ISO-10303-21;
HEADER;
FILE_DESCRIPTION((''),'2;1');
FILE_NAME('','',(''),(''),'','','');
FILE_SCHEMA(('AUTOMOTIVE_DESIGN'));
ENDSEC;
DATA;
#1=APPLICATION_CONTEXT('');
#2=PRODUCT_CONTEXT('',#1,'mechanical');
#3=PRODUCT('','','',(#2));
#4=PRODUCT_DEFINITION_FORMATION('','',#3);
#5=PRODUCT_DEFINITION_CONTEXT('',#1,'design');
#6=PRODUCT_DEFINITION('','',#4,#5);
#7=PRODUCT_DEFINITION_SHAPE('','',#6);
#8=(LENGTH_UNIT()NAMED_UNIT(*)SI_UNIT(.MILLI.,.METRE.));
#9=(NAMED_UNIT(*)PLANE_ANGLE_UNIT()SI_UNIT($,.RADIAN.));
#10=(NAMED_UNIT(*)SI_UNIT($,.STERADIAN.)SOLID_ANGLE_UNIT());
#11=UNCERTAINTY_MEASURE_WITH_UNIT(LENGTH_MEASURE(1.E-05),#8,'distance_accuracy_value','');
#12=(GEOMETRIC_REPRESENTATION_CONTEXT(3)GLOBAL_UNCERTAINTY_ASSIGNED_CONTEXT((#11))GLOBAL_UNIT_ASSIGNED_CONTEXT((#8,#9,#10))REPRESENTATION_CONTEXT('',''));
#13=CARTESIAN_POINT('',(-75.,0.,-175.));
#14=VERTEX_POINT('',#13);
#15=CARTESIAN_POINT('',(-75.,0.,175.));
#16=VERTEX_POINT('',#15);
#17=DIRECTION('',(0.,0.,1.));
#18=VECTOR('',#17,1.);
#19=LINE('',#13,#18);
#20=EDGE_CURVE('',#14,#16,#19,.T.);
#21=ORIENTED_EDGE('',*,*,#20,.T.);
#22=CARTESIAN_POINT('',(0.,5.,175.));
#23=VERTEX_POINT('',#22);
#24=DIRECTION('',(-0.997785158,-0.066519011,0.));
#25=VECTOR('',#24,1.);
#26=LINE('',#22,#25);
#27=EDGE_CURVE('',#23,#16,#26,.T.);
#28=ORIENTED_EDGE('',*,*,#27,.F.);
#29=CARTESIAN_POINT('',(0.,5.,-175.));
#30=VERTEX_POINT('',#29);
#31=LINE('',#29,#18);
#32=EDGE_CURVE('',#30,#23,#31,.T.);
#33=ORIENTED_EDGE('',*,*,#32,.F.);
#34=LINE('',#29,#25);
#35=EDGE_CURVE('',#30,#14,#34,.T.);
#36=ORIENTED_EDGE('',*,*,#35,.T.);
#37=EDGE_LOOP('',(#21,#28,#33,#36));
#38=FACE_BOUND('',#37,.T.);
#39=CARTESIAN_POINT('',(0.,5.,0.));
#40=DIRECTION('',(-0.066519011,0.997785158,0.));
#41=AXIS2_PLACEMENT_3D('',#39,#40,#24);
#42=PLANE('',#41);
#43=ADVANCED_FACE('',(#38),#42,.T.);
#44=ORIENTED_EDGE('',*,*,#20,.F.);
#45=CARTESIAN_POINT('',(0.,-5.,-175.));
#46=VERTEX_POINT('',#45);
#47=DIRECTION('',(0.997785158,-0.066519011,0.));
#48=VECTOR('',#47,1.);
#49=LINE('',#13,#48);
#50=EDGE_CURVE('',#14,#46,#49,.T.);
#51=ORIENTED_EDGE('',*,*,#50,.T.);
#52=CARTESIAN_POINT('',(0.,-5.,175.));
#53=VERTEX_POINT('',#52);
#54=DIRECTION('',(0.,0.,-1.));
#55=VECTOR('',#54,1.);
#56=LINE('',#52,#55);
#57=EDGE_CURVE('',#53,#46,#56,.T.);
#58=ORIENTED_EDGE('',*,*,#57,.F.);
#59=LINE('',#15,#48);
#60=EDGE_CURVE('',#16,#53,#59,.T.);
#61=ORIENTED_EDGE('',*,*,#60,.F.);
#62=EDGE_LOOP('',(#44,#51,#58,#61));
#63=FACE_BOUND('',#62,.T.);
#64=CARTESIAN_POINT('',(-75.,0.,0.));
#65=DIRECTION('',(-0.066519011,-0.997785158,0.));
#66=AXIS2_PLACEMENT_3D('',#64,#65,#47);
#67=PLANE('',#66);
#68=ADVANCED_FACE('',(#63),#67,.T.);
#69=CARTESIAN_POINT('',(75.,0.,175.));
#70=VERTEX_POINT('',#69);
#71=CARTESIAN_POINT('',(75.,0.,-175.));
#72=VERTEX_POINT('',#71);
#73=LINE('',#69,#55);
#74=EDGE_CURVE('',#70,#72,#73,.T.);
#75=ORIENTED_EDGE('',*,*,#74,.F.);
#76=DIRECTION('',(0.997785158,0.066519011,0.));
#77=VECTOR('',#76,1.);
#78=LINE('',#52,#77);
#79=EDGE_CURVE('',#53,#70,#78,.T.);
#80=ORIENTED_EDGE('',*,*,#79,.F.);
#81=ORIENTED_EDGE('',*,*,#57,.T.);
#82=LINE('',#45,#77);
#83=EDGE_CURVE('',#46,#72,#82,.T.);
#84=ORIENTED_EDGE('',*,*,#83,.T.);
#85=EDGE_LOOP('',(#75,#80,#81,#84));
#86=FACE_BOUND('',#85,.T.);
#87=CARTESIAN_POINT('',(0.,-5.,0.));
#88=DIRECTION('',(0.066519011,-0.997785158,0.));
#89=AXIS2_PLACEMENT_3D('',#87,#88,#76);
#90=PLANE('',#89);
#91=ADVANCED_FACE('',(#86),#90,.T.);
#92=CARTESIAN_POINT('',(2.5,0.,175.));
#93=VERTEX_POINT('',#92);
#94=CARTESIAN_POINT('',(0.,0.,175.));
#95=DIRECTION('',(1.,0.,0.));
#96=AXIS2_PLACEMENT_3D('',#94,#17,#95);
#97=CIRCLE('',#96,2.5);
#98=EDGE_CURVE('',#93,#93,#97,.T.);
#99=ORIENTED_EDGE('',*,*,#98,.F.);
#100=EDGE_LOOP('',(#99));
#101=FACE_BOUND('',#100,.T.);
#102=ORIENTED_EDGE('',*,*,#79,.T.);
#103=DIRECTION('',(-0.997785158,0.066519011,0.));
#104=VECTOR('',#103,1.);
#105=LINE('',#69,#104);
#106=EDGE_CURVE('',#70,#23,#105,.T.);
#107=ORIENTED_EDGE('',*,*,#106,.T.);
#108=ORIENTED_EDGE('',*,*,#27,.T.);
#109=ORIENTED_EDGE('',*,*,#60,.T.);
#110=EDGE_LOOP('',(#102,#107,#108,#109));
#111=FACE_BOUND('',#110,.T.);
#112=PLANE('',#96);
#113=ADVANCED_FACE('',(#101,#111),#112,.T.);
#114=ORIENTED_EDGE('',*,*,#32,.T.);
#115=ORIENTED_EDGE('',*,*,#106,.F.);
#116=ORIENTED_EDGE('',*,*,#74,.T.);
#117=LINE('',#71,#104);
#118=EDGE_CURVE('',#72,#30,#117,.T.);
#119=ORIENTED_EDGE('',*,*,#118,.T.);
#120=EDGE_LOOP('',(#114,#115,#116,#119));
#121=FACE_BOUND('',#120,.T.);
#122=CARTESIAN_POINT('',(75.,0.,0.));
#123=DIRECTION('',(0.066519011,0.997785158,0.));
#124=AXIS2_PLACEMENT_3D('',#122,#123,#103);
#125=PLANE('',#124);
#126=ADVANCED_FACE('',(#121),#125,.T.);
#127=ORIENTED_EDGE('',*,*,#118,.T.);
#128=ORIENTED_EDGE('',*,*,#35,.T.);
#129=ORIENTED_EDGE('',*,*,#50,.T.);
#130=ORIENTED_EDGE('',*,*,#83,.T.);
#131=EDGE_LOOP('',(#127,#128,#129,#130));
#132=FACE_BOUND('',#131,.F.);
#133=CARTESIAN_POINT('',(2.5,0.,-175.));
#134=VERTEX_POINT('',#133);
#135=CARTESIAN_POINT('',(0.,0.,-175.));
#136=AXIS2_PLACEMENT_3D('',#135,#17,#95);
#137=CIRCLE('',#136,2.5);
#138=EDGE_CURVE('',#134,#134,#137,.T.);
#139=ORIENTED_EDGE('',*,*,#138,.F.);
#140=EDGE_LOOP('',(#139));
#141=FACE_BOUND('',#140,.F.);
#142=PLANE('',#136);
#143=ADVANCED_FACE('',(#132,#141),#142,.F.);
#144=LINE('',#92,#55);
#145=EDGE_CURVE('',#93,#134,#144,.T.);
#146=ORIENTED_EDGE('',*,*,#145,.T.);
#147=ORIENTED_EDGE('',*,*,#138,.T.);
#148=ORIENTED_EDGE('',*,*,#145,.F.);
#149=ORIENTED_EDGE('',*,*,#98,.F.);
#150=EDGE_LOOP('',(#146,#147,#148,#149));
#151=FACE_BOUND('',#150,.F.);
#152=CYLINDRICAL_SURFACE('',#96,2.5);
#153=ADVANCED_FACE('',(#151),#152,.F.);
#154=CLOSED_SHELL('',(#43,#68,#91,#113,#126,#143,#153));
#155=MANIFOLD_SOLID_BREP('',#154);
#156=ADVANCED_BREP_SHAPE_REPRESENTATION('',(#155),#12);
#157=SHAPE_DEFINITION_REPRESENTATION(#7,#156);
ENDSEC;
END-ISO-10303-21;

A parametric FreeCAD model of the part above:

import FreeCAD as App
import Part
import Sketcher
from FreeCAD import Vector
Q = App.Units.Quantity

doc = App.newDocument("Part")
body = doc.addObject("PartDesign::Body", "Body")

sketch1 = doc.addObject("Sketcher::SketchObject", "Sketch")
body.addObject(sketch1)
sketch1.AttachmentSupport = (doc.XY_Plane, [""])
sketch1.MapMode = "FlatFace"
sketch1.addGeometry([
    Part.LineSegment(Vector(75, 0, 0), Vector(0, 5, 0)),
    Part.LineSegment(Vector(0, 5, 0), Vector(-75, 0, 0)),
    Part.LineSegment(Vector(-75, 0, 0), Vector(0, -5, 0)),
    Part.LineSegment(Vector(0, -5, 0), Vector(75, 0, 0)),
], False)
sketch1.addConstraint([
    Sketcher.Constraint("Coincident", 0, 2, 1, 1),
    Sketcher.Constraint("Coincident", 1, 2, 2, 1),
    Sketcher.Constraint("Coincident", 2, 2, 3, 1),
    Sketcher.Constraint("Coincident", 3, 2, 0, 1),
    Sketcher.Constraint("Symmetric", 0, 2, 2, 2, -1, 1),
    Sketcher.Constraint("Symmetric", 1, 2, 3, 2, -1, 1),
    Sketcher.Constraint("PointOnObject", 0, 2, -2),
    Sketcher.Constraint("PointOnObject", 1, 2, -1),
    Sketcher.Constraint("DistanceY", -1, 1, 0, 2, Q("5 mm")),
    Sketcher.Constraint("DistanceX", 1, 2, -1, 1, Q("75 mm")),
])
pad1 = doc.addObject("PartDesign::Pad", "Pad")
body.addObject(pad1)
pad1.Profile = sketch1
pad1.Length = 350
pad1.Midplane = True

sketch2 = doc.addObject("Sketcher::SketchObject", "Sketch001")
body.addObject(sketch2)
sketch2.AttachmentSupport = (doc.XY_Plane, [""])
sketch2.MapMode = "FlatFace"
sketch2.AttachmentOffset = App.Placement(Vector(0, 0, 175), App.Rotation())
sketch2.addGeometry(Part.Circle(Vector(0, 0, 0), Vector(0, 0, 1), 2.5), False)
sketch2.addConstraint([
    Sketcher.Constraint("Coincident", 0, 3, -1, 1),
    Sketcher.Constraint("Diameter", 0, Q("5 mm")),
])
pocket1 = doc.addObject("PartDesign::Pocket", "Pocket")
body.addObject(pocket1)
pocket1.Profile = sketch2
pocket1.Type = "ThroughAll"

doc.recompute()
